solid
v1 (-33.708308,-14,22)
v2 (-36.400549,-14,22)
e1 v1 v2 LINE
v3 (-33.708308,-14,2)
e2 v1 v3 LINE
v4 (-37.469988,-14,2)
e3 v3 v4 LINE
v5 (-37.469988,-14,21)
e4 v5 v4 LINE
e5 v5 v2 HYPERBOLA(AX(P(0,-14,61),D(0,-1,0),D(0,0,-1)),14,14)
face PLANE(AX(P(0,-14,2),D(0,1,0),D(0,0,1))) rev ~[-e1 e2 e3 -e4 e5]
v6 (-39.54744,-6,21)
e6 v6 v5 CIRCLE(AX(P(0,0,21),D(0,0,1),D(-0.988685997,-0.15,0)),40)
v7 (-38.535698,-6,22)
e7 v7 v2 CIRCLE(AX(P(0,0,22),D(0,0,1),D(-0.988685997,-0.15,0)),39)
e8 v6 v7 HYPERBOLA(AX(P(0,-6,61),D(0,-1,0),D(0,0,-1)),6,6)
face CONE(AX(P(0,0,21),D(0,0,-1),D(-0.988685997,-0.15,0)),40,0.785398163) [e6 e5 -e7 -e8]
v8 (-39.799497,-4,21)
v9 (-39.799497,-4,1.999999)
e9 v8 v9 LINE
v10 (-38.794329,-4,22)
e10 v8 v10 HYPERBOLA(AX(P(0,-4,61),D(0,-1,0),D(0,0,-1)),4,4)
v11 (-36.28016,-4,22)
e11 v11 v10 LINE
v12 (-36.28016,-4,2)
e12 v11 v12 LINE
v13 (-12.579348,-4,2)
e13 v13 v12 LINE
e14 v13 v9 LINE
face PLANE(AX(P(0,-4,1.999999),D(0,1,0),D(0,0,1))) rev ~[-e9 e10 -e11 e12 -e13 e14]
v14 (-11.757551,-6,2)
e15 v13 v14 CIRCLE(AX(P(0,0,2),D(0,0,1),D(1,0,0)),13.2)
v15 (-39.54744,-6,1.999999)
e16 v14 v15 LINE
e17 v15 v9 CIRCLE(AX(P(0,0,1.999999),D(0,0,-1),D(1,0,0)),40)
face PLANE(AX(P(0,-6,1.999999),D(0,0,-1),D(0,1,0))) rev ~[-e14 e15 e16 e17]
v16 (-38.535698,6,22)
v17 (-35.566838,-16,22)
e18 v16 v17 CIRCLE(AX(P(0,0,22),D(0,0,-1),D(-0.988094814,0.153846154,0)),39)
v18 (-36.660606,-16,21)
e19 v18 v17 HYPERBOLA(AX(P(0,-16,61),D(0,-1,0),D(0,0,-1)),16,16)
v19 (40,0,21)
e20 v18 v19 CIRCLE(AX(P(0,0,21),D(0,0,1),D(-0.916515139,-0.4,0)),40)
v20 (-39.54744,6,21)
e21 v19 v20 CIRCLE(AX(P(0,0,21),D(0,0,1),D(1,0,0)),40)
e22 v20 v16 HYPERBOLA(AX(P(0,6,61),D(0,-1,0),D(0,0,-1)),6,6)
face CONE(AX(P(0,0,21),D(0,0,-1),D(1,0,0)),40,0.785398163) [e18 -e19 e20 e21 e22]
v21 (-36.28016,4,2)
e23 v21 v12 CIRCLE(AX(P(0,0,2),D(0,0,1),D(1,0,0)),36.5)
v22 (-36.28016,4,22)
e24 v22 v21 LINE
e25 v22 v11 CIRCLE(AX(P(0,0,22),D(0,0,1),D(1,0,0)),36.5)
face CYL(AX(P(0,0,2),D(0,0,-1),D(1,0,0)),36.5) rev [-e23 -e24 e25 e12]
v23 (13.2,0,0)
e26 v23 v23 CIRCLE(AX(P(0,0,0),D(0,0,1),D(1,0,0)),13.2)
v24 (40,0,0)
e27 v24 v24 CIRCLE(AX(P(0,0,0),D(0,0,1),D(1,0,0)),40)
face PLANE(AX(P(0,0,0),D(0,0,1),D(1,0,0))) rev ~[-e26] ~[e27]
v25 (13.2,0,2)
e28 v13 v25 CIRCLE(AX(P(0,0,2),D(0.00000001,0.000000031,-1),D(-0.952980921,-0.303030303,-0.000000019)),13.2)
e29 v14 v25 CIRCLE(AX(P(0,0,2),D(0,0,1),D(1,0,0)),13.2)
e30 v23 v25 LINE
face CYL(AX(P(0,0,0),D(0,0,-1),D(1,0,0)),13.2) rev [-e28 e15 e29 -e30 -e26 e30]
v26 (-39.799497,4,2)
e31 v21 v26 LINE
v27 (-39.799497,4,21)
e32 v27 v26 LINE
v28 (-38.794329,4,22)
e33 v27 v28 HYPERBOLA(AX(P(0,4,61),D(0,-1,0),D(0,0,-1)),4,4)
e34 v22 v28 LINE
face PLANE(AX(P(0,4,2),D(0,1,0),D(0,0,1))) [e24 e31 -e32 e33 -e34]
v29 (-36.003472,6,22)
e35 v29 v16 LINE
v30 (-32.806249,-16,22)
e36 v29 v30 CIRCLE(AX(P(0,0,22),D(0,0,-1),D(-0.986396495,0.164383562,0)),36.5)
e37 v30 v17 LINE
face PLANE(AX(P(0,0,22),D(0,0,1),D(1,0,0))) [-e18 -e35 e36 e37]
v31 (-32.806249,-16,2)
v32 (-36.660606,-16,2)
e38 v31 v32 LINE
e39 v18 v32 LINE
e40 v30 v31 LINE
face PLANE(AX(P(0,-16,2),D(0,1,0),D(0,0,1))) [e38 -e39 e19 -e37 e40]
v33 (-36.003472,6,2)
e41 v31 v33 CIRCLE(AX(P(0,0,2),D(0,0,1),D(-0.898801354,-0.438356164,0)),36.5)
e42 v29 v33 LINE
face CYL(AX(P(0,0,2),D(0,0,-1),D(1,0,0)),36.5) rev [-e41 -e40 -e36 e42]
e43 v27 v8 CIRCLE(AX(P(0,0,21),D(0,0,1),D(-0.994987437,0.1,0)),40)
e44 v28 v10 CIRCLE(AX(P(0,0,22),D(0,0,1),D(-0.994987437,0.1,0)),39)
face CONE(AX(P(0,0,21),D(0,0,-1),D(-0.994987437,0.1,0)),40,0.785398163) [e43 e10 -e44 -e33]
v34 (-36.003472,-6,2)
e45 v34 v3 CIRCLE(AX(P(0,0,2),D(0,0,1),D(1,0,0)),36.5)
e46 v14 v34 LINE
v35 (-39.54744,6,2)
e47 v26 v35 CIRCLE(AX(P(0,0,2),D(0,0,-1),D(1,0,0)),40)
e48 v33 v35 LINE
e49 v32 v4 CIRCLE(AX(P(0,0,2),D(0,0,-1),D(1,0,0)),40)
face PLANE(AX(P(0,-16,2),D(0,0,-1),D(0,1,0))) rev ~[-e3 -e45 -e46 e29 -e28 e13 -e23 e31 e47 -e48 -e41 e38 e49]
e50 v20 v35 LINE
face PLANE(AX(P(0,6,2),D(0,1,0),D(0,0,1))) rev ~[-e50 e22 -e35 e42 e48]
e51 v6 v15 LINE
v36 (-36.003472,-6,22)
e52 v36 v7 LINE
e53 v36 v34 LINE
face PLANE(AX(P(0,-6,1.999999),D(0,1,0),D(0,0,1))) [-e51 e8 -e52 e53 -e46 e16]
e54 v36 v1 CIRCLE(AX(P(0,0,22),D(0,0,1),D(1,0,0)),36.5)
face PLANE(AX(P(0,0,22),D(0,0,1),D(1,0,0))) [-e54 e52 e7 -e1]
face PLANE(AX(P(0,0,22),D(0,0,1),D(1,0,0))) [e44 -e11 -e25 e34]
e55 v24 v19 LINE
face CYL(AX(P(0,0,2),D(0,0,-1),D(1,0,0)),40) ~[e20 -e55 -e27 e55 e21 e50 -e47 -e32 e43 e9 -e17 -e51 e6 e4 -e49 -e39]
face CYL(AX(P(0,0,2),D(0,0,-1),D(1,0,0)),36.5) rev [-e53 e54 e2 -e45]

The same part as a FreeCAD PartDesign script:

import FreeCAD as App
import Part
import Sketcher
from FreeCAD import Vector


def edges_at(feature, points):
    """Names of the edges that pass closest to the given points."""
    edges = feature.Shape.Edges
    near = lambda p: min(range(len(edges)), key=lambda i: edges[i].distToShape(Part.Vertex(*p))[0])
    return sorted({f"Edge{near(p) + 1}" for p in points})

doc = App.newDocument("Part")
body = doc.addObject("PartDesign::Body", "Body")

# Sketch on XY plane
sketch1 = body.newObject("Sketcher::SketchObject", "Sketch")
sketch1.AttachmentSupport = (doc.getObject("XY_Plane"), [""])
sketch1.MapMode = "FlatFace"
sketch1.addGeometry(Part.Circle(Vector(0, 0, 0), Vector(0, 0, 1), 40), False)
sketch1.addGeometry(Part.Circle(Vector(0, 0, 0), Vector(0, 0, 1), 13.2), False)
sketch1.addConstraint(Sketcher.Constraint("Coincident", 0, 3, -1, 1))
sketch1.addConstraint(Sketcher.Constraint("Coincident", 1, 3, -1, 1))
sketch1.addConstraint(Sketcher.Constraint("Diameter", 0, 80.0))
sketch1.addConstraint(Sketcher.Constraint("Diameter", 1, 26.4))
pad1 = body.newObject("PartDesign::Pad", "Pad")
pad1.Profile = sketch1
pad1.Length = 2

# Sketch on XY plane
sketch2 = body.newObject("Sketcher::SketchObject", "Sketch001")
sketch2.AttachmentSupport = (doc.getObject("XY_Plane"), [""])
sketch2.MapMode = "FlatFace"
sketch2.AttachmentOffset = App.Placement(Vector(0, 0, 2), App.Rotation())
sketch2.addGeometry(Part.Circle(Vector(0, 0, 0), Vector(0, 0, 1), 40), False)
sketch2.addGeometry(Part.Circle(Vector(0, 0, 0), Vector(0, 0, 1), 36.5), False)
sketch2.addConstraint(Sketcher.Constraint("Coincident", 0, 3, -1, 1))
sketch2.addConstraint(Sketcher.Constraint("Coincident", 1, 3, -1, 1))
sketch2.addConstraint(Sketcher.Constraint("Diameter", 0, 80.0))
sketch2.addConstraint(Sketcher.Constraint("Diameter", 1, 73.0))
pad2 = body.newObject("PartDesign::Pad", "Pad001")
pad2.Profile = sketch2
pad2.Length = 20

# Sketch on YZ plane
sketch3 = body.newObject("Sketcher::SketchObject", "Sketch002")
sketch3.AttachmentSupport = (doc.getObject("YZ_Plane"), [""])
sketch3.MapMode = "FlatFace"
sketch3.addGeometry(Part.LineSegment(Vector(4, 28.167402, 0), Vector(4, 2, 0)), False)
sketch3.addGeometry(Part.LineSegment(Vector(4, 2, 0), Vector(6, 2, 0)), False)
sketch3.addGeometry(Part.LineSegment(Vector(6, 2, 0), Vector(6, 28.167402, 0)), False)
sketch3.addGeometry(Part.LineSegment(Vector(6, 28.167402, 0), Vector(4, 28.167402, 0)), False)
sketch3.addGeometry(Part.LineSegment(Vector(-6, 26.922536, 0), Vector(-6, 1.999999, 0)), False)
sketch3.addGeometry(Part.LineSegment(Vector(-6, 1.999999, 0), Vector(-4, 1.999999, 0)), False)
sketch3.addGeometry(Part.LineSegment(Vector(-4, 1.999999, 0), Vector(-4, 26.922536, 0)), False)
sketch3.addGeometry(Part.LineSegment(Vector(-4, 26.922536, 0), Vector(-6, 26.922536, 0)), False)
sketch3.addGeometry(Part.LineSegment(Vector(-16, 29.566788, 0), Vector(-16, 2, 0)), False)
sketch3.addGeometry(Part.LineSegment(Vector(-16, 2, 0), Vector(-14, 2, 0)), False)
sketch3.addGeometry(Part.LineSegment(Vector(-14, 2, 0), Vector(-14, 29.566788, 0)), False)
sketch3.addGeometry(Part.LineSegment(Vector(-14, 29.566788, 0), Vector(-16, 29.566788, 0)), False)
sketch3.addConstraint(Sketcher.Constraint("Coincident", 0, 2, 1, 1))
sketch3.addConstraint(Sketcher.Constraint("Coincident", 1, 2, 2, 1))
sketch3.addConstraint(Sketcher.Constraint("Coincident", 2, 2, 3, 1))
sketch3.addConstraint(Sketcher.Constraint("Coincident", 3, 2, 0, 1))
sketch3.addConstraint(Sketcher.Constraint("Coincident", 4, 2, 5, 1))
sketch3.addConstraint(Sketcher.Constraint("Coincident", 5, 2, 6, 1))
sketch3.addConstraint(Sketcher.Constraint("Coincident", 6, 2, 7, 1))
sketch3.addConstraint(Sketcher.Constraint("Coincident", 7, 2, 4, 1))
sketch3.addConstraint(Sketcher.Constraint("Coincident", 8, 2, 9, 1))
sketch3.addConstraint(Sketcher.Constraint("Coincident", 9, 2, 10, 1))
sketch3.addConstraint(Sketcher.Constraint("Coincident", 10, 2, 11, 1))
sketch3.addConstraint(Sketcher.Constraint("Coincident", 11, 2, 8, 1))
sketch3.addConstraint(Sketcher.Constraint("Vertical", 0))
sketch3.addConstraint(Sketcher.Constraint("Horizontal", 1))
sketch3.addConstraint(Sketcher.Constraint("Vertical", 2))
sketch3.addConstraint(Sketcher.Constraint("Horizontal", 3))
sketch3.addConstraint(Sketcher.Constraint("Vertical", 4))
sketch3.addConstraint(Sketcher.Constraint("Horizontal", 5))
sketch3.addConstraint(Sketcher.Constraint("Vertical", 6))
sketch3.addConstraint(Sketcher.Constraint("Horizontal", 7))
sketch3.addConstraint(Sketcher.Constraint("Vertical", 8))
sketch3.addConstraint(Sketcher.Constraint("Horizontal", 9))
sketch3.addConstraint(Sketcher.Constraint("Vertical", 10))
sketch3.addConstraint(Sketcher.Constraint("Horizontal", 11))
sketch3.addConstraint(Sketcher.Constraint("Symmetric", 1, 2, 4, 2, -2))
sketch3.addConstraint(Sketcher.Constraint("Horizontal", 5, 2, 8, 2))
sketch3.addConstraint(Sketcher.Constraint("Equal", 3, 5))
sketch3.addConstraint(Sketcher.Constraint("Equal", 7, 9))
sketch3.addConstraint(Sketcher.Constraint("DistanceX", 1, 1, 1, 2, 2.0))
sketch3.addConstraint(Sketcher.Constraint("DistanceX", -1, 1, 0, 2, 4.0))
sketch3.addConstraint(Sketcher.Constraint("DistanceY", -1, 1, 0, 2, 2.0))
sketch3.addConstraint(Sketcher.Constraint("DistanceX", 8, 2, -1, 1, 16.0))
sketch3.addConstraint(Sketcher.Constraint("DistanceY", 0, 2, 0, 1, 26.167402))
sketch3.addConstraint(Sketcher.Constraint("DistanceY", 4, 2, 4, 1, 24.922537))
sketch3.addConstraint(Sketcher.Constraint("DistanceY", 8, 2, 8, 1, 27.566788))
pocket1 = body.newObject("PartDesign::Pocket", "Pocket")
pocket1.Profile = sketch3
pocket1.Type = "ThroughAll"
doc.recompute()

chamfer = body.newObject("PartDesign::Chamfer", "Chamfer")
chamfer.Base = (pocket1, edges_at(pocket1, [(3.009, 39.887, 22)]))
chamfer.Size = 1
doc.recompute()

chamfer2 = body.newObject("PartDesign::Chamfer", "Chamfer001")
chamfer2.Base = (chamfer, edges_at(chamfer, [(-40, 0, 22)]))
chamfer2.Size = 1
doc.recompute()

chamfer3 = body.newObject("PartDesign::Chamfer", "Chamfer002")
chamfer3.Base = (chamfer2, edges_at(chamfer2, [(-38.716, -10.054, 22)]))
chamfer3.Size = 1

doc.recompute()
